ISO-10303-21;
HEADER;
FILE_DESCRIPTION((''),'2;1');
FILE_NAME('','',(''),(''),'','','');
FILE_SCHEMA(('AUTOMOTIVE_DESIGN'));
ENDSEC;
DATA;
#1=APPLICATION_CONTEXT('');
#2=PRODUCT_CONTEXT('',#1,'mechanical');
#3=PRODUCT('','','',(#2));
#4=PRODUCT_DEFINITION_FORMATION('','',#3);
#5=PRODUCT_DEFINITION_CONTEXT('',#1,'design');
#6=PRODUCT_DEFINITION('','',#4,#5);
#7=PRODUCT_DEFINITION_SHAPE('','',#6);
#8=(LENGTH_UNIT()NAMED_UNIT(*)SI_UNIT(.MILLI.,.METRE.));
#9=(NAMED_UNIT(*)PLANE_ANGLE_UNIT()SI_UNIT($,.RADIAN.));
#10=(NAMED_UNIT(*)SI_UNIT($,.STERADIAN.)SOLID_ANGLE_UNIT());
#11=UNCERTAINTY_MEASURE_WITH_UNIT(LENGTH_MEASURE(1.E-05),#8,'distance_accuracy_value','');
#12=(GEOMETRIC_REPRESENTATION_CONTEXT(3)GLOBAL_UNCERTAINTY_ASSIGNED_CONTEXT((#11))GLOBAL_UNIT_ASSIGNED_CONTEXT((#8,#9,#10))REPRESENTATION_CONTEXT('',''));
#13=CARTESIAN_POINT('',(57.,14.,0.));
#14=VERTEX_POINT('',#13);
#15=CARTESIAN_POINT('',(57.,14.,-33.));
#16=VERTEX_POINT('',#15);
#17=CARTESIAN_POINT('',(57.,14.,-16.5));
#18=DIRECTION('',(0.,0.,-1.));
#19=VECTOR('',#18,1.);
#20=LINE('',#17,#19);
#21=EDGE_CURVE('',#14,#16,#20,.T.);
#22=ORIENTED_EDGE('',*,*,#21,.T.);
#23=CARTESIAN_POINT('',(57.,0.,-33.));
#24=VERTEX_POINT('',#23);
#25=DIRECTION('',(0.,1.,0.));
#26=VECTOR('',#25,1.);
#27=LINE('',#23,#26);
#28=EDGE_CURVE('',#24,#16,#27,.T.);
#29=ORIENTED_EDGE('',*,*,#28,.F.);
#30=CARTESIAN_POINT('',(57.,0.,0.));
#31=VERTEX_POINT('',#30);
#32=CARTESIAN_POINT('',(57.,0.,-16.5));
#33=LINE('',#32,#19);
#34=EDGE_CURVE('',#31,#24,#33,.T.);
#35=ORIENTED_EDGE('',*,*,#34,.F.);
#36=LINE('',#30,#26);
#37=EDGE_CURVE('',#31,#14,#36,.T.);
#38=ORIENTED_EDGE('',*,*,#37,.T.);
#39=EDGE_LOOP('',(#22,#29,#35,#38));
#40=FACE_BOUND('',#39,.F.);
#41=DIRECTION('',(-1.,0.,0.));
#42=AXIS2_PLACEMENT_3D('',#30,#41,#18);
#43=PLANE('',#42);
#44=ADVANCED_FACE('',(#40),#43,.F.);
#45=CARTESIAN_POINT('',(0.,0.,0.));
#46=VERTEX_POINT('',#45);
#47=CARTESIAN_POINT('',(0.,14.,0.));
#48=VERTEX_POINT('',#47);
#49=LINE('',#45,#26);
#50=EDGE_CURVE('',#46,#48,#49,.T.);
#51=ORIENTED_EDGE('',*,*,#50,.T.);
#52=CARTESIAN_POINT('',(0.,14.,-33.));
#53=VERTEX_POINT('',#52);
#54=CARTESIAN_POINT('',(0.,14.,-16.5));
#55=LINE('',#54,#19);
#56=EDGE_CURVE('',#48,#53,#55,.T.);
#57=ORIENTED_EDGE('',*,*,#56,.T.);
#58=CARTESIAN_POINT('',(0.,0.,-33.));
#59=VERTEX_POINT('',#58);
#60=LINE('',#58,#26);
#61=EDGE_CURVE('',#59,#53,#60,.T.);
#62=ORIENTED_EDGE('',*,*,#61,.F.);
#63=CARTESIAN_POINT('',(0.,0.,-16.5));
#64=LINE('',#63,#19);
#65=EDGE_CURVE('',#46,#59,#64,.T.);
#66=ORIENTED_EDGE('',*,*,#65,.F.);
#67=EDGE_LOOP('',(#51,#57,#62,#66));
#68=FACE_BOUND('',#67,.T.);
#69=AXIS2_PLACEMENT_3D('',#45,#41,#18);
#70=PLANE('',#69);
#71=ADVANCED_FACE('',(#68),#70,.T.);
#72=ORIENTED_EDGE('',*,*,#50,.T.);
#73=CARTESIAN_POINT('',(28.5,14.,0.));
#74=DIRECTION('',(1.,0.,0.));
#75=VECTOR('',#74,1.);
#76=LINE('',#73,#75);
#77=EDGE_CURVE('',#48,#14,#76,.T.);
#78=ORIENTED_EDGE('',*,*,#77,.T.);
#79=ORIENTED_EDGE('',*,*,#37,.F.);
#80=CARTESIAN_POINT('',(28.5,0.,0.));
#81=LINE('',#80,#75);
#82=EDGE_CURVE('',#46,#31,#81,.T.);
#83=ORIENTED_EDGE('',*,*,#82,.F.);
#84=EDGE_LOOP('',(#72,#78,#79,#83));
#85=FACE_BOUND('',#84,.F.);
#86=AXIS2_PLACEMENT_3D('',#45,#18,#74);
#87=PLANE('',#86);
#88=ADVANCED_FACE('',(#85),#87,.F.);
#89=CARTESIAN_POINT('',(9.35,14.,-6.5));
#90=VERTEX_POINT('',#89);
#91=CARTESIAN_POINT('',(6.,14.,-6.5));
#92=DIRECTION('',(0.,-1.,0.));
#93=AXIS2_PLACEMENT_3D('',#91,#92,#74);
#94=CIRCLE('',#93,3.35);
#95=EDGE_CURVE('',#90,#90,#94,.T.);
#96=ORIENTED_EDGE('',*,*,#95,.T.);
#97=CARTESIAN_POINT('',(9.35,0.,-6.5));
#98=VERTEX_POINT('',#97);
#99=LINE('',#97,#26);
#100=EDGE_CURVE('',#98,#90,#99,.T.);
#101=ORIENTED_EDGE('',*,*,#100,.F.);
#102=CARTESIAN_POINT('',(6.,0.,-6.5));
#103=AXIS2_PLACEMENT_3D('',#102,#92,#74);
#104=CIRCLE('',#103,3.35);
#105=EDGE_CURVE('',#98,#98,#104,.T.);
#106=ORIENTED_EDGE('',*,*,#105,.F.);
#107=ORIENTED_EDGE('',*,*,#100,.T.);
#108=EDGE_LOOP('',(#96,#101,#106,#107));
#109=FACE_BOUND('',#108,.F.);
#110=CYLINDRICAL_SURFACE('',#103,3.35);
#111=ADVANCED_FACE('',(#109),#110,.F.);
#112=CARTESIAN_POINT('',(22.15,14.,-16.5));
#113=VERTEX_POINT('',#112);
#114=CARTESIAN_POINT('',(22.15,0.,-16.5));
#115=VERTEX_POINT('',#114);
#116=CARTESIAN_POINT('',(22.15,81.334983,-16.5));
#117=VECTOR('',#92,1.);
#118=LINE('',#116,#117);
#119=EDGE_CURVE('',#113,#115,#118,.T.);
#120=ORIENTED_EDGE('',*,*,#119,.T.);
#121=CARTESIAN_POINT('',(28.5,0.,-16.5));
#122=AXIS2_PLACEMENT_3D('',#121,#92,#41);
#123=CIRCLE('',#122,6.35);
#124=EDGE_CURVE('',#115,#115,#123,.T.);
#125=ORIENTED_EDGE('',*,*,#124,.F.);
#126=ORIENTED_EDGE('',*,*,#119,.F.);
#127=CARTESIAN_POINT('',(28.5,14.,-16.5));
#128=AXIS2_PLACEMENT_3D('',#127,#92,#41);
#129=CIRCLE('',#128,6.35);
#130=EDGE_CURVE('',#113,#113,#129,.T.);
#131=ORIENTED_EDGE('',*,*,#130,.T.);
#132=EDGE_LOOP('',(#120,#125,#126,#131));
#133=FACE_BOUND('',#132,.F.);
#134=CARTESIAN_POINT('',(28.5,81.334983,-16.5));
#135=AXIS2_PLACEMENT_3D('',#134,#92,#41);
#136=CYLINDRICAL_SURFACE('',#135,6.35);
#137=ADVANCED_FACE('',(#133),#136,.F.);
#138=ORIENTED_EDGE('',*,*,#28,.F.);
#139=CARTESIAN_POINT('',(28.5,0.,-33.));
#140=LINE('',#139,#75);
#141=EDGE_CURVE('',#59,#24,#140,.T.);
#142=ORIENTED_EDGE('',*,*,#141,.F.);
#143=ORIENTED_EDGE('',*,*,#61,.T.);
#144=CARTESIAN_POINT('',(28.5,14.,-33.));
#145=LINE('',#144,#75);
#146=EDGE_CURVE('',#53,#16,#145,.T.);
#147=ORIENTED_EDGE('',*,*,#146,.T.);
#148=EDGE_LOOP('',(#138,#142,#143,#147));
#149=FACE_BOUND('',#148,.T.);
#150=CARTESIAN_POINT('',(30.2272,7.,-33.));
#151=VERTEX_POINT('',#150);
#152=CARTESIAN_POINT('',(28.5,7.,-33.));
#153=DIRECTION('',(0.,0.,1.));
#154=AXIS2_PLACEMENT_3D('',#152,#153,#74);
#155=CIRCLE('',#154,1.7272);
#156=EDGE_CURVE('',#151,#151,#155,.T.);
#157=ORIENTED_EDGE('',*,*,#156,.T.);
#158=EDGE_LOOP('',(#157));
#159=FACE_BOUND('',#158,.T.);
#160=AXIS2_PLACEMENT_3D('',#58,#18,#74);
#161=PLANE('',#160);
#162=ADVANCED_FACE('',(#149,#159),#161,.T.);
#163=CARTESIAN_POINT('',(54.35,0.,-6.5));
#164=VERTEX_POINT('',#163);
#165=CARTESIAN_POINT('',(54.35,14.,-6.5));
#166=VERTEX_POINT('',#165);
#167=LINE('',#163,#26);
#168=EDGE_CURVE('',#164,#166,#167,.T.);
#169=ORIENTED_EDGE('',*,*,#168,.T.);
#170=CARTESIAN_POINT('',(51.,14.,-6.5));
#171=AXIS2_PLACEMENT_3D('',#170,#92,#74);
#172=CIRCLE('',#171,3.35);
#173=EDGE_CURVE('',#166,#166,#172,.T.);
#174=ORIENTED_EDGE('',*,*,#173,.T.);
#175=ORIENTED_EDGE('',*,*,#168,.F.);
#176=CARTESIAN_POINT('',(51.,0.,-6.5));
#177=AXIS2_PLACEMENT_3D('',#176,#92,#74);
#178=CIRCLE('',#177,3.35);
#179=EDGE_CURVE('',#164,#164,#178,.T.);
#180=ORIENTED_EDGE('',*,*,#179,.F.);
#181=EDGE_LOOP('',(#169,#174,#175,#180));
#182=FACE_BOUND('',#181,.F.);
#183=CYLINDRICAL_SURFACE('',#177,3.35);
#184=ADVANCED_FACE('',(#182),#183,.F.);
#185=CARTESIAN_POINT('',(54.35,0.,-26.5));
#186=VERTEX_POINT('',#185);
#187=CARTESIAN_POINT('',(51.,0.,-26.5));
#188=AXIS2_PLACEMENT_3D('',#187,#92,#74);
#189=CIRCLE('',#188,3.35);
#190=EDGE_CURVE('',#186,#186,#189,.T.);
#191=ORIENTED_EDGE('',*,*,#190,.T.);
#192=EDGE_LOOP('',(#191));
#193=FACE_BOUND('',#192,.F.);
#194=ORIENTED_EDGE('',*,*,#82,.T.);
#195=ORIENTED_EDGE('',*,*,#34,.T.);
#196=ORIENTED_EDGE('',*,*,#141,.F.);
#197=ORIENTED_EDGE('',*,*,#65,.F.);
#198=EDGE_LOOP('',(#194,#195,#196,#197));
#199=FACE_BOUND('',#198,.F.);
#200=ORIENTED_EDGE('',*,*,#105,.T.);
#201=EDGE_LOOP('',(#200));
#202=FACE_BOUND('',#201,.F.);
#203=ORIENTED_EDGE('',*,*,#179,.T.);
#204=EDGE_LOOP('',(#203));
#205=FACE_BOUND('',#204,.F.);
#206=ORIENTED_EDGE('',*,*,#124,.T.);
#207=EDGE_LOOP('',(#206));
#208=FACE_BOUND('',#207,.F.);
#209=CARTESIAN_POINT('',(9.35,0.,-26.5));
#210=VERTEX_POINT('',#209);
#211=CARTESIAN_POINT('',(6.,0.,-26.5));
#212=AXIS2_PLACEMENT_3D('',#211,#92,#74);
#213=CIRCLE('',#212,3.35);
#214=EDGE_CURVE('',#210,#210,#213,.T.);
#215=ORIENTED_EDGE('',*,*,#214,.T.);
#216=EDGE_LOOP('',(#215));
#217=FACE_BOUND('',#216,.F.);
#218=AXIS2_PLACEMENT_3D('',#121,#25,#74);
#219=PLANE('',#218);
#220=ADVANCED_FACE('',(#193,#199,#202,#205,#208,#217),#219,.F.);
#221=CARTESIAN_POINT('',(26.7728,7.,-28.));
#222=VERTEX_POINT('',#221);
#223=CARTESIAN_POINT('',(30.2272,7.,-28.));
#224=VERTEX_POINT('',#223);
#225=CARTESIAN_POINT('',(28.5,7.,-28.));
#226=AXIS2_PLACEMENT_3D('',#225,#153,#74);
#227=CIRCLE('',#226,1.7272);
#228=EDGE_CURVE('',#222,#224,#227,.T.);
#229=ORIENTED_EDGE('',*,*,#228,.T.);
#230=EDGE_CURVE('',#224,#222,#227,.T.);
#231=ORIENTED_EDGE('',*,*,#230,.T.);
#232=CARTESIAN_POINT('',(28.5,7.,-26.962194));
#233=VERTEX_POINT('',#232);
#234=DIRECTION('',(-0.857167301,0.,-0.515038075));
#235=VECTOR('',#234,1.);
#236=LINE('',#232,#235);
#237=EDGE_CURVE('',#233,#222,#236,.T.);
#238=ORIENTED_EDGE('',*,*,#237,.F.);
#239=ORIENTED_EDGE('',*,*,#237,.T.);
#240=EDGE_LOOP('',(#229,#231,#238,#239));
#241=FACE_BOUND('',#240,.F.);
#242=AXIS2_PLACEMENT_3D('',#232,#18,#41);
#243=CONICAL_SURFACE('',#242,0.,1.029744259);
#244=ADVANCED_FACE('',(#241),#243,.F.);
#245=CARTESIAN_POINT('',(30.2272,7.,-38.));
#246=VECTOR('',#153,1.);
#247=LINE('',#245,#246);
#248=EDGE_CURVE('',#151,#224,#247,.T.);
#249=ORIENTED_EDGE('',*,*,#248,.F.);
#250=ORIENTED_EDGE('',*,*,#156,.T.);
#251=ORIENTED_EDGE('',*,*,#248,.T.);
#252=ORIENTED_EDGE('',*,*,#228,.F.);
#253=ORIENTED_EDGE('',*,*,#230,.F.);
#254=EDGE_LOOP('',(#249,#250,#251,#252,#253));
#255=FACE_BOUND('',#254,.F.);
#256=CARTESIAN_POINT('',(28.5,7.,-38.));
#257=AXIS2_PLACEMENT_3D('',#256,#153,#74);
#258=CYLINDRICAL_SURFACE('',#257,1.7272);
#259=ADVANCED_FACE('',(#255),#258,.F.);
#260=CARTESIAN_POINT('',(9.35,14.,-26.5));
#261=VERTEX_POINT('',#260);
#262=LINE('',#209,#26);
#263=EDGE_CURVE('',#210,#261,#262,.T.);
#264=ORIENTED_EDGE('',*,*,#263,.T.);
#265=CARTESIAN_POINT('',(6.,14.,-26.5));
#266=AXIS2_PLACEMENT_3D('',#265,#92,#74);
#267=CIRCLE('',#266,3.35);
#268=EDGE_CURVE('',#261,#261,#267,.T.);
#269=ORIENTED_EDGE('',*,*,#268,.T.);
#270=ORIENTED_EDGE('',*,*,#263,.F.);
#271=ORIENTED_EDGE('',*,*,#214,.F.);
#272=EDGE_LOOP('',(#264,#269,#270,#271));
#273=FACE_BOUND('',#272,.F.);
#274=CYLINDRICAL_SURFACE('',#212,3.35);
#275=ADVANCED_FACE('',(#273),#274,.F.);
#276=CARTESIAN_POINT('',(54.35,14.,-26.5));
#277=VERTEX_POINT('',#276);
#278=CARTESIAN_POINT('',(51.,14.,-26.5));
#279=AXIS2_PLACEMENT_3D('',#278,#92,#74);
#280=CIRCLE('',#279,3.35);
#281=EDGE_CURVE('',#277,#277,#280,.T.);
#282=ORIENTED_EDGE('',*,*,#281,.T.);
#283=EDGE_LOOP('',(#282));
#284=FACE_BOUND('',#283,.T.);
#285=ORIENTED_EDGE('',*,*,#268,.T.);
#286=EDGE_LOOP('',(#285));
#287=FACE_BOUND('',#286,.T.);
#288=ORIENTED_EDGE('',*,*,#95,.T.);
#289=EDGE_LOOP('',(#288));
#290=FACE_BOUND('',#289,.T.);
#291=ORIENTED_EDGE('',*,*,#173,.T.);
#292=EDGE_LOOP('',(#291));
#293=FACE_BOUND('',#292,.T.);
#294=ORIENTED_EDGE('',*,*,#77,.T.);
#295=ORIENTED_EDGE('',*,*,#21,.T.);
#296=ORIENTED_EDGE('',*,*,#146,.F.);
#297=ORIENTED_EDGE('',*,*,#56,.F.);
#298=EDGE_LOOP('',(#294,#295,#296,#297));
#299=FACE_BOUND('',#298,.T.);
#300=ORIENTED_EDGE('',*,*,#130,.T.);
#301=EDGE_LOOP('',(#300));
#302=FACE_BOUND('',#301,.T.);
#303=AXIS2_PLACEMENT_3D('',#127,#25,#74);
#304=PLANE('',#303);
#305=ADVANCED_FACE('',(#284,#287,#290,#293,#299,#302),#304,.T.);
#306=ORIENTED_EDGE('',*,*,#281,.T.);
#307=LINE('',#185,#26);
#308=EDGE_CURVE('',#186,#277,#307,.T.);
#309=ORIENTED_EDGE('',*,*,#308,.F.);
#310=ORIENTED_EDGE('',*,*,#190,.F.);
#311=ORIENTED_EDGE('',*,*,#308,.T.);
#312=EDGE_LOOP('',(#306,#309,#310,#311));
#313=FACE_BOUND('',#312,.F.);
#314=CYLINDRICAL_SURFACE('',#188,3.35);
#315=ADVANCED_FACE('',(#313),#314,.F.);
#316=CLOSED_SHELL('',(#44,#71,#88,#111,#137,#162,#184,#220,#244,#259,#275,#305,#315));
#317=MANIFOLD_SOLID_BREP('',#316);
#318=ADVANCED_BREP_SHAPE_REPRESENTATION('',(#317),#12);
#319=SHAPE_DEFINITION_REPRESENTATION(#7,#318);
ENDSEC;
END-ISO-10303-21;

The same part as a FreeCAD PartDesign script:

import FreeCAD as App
import Part
import Sketcher

V = App.Vector
Q = App.Units.Quantity


def add_polygon(sketch, points):
    """Adds a closed chain of lines whose ends are joined by coincident constraints."""
    first, n = sketch.GeometryCount, len(points)
    for a, b in zip(points, points[1:] + points[:1]):
        sketch.addGeometry(Part.LineSegment(App.Vector(*a, 0), App.Vector(*b, 0)), False)
    for i in range(n):
        sketch.addConstraint(Sketcher.Constraint("Coincident", first + i, 2, first + (i + 1) % n, 1))

doc = App.newDocument("Part")
body = doc.addObject("PartDesign::Body", "Body")

# Sketch on XZ plane
sketch1 = body.newObject("Sketcher::SketchObject", "Sketch")
sketch1.AttachmentSupport = (doc.getObject("XZ_Plane"), [""])
sketch1.MapMode = "FlatFace"
add_polygon(sketch1, [(0, -33), (0, 0), (57, 0), (57, -33)])  # lines 0-3
sketch1.addConstraint([
    Sketcher.Constraint("Vertical", 0),
    Sketcher.Constraint("Horizontal", 1),
    Sketcher.Constraint("Vertical", 2),
    Sketcher.Constraint("Horizontal", 3),
    Sketcher.Constraint("Coincident", 0, 2, -1, 1),
    Sketcher.Constraint("DistanceX", 1, 1, 1, 2, Q("57 mm")),
    Sketcher.Constraint("DistanceY", 0, 1, 0, 2, Q("33 mm")),
])
pad1 = body.newObject("PartDesign::Pad", "Pad")
pad1.Profile = sketch1
pad1.Length = 14
pad1.Reversed = True

# Sketch on XZ plane
sketch2 = body.newObject("Sketcher::SketchObject", "Sketch001")
sketch2.AttachmentSupport = (doc.getObject("XZ_Plane"), [""])
sketch2.MapMode = "FlatFace"
sketch2.addGeometry(Part.Circle(V(6, -6.5, 0), V(0, 0, 1), 3.35), False)
sketch2.addConstraint([
    Sketcher.Constraint("Diameter", 0, Q("6.7 mm")),
    Sketcher.Constraint("DistanceX", -1, 1, 0, 3, Q("6 mm")),
    Sketcher.Constraint("DistanceY", 0, 3, -1, 1, Q("6.5 mm")),
])
pocket1 = body.newObject("PartDesign::Pocket", "Pocket")
pocket1.Profile = sketch2
pocket1.Type = "ThroughAll"

# Sketch on XZ plane
sketch3 = body.newObject("Sketcher::SketchObject", "Sketch002")
sketch3.AttachmentSupport = (doc.getObject("XZ_Plane"), [""])
sketch3.MapMode = "FlatFace"
sketch3.addGeometry(Part.Circle(V(51, -26.5, 0), V(0, 0, 1), 3.35), False)
sketch3.addConstraint([
    Sketcher.Constraint("Diameter", 0, Q("6.7 mm")),
    Sketcher.Constraint("DistanceX", -1, 1, 0, 3, Q("51 mm")),
    Sketcher.Constraint("DistanceY", 0, 3, -1, 1, Q("26.5 mm")),
])
pocket2 = body.newObject("PartDesign::Pocket", "Pocket001")
pocket2.Profile = sketch3
pocket2.Type = "ThroughAll"

# Sketch on XZ plane
sketch4 = body.newObject("Sketcher::SketchObject", "Sketch003")
sketch4.AttachmentSupport = (doc.getObject("XZ_Plane"), [""])
sketch4.MapMode = "FlatFace"
sketch4.addGeometry(Part.Circle(V(6, -26.5, 0), V(0, 0, 1), 3.35), False)
sketch4.addConstraint([
    Sketcher.Constraint("Diameter", 0, Q("6.7 mm")),
    Sketcher.Constraint("DistanceX", -1, 1, 0, 3, Q("6 mm")),
    Sketcher.Constraint("DistanceY", 0, 3, -1, 1, Q("26.5 mm")),
])
pocket3 = body.newObject("PartDesign::Pocket", "Pocket002")
pocket3.Profile = sketch4
pocket3.Type = "ThroughAll"

# Sketch on XZ plane
sketch5 = body.newObject("Sketcher::SketchObject", "Sketch004")
sketch5.AttachmentSupport = (doc.getObject("XZ_Plane"), [""])
sketch5.MapMode = "FlatFace"
sketch5.addGeometry(Part.Circle(V(51, -6.5, 0), V(0, 0, 1), 3.35), False)
sketch5.addConstraint([
    Sketcher.Constraint("Diameter", 0, Q("6.7 mm")),
    Sketcher.Constraint("DistanceX", -1, 1, 0, 3, Q("51 mm")),
    Sketcher.Constraint("DistanceY", 0, 3, -1, 1, Q("6.5 mm")),
])
pocket4 = body.newObject("PartDesign::Pocket", "Pocket003")
pocket4.Profile = sketch5
pocket4.Type = "ThroughAll"

# Sketch on XY plane
sketch6 = body.newObject("Sketcher::SketchObject", "Sketch005")
sketch6.AttachmentSupport = (doc.getObject("XY_Plane"), [""])
sketch6.MapMode = "FlatFace"
sketch6.AttachmentOffset = App.Placement(V(0, 0, -33), App.Rotation())
sketch6.addGeometry(Part.Circle(V(28.5, 7, 0), V(0, 0, 1), 1.7272), False)
sketch6.addConstraint([
    Sketcher.Constraint("DistanceY", -1, 1, 0, 3, Q("7 mm")),
    Sketcher.Constraint("Diameter", 0, Q("3.4544 mm")),
    Sketcher.Constraint("DistanceX", -1, 1, 0, 3, Q("28.5 mm")),
])
doc.recompute()
hole = body.newObject("PartDesign::Hole", "Hole")
hole.Profile = sketch6
hole.ThreadType = "None"
hole.Diameter = 3.4544
hole.DepthType = "Dimension"
hole.Depth = 5
hole.DrillPoint = "Angled"
hole.DrillPointAngle = 118
hole.Reversed = True

# Sketch on XZ plane
sketch7 = body.newObject("Sketcher::SketchObject", "Sketch006")
sketch7.AttachmentSupport = (doc.getObject("XZ_Plane"), [""])
sketch7.MapMode = "FlatFace"
sketch7.AttachmentOffset = App.Placement(V(0, 0, -14), App.Rotation())
sketch7.addGeometry(Part.Circle(V(28.5, -16.5, 0), V(0, 0, 1), 6.35), False)
sketch7.addConstraint([
    Sketcher.Constraint("Diameter", 0, Q("12.7 mm")),
    Sketcher.Constraint("DistanceX", -1, 1, 0, 3, Q("28.5 mm")),
    Sketcher.Constraint("DistanceY", 0, 3, -1, 1, Q("16.5 mm")),
])
doc.recompute()
hole2 = body.newObject("PartDesign::Hole", "Hole001")
hole2.Profile = sketch7
hole2.ThreadType = "None"
hole2.Diameter = 12.7
hole2.DepthType = "ThroughAll"
hole2.Reversed = True

doc.recompute()
